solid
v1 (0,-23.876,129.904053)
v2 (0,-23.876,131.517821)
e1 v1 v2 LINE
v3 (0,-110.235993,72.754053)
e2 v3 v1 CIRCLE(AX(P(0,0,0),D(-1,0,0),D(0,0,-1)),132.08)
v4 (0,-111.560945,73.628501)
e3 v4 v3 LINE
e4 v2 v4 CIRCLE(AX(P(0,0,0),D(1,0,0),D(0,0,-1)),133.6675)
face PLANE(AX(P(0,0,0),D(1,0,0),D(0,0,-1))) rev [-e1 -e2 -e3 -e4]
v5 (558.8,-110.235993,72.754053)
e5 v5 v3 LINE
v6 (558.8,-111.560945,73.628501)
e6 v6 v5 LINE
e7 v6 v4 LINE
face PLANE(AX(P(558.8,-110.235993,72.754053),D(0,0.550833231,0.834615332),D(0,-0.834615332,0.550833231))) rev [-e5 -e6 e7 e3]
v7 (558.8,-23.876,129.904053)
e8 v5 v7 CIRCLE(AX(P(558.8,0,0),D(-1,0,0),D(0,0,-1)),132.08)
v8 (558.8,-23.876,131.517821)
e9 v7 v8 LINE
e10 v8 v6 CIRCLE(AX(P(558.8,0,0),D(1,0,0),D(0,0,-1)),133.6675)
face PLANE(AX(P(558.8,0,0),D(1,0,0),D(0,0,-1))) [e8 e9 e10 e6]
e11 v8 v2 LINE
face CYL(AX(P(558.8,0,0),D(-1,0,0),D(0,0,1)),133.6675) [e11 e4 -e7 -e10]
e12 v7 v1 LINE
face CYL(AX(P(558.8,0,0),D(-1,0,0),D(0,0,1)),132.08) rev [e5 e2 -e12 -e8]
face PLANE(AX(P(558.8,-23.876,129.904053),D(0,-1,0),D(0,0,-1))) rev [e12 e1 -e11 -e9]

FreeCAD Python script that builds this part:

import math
import FreeCAD as App
import Part
import Sketcher
Q = App.Units.Quantity

doc = App.newDocument("Part")
body = doc.addObject("PartDesign::Body", "Body")

sketch1 = doc.addObject("Sketcher::SketchObject", "Sketch")
body.addObject(sketch1)
sketch1.AttachmentSupport = (doc.YZ_Plane, [""])
sketch1.MapMode = "FlatFace"
sketch1.addGeometry([
    Part.LineSegment(App.Vector(-23.9, 129.9, 0), App.Vector(-23.9, 131.5, 0)),
    Part.ArcOfCircle(Part.Circle(App.Vector(0, 0, 0), App.Vector(0, 0, 1), 133.7), math.radians(100), math.radians(147)),
    Part.LineSegment(App.Vector(-111.6, 73.6, 0), App.Vector(-110.2, 72.8, 0)),
    Part.ArcOfCircle(Part.Circle(App.Vector(0, 0, 0), App.Vector(0, 0, 1), 132.1), math.radians(100), math.radians(147)),
], False)
sketch1.addConstraint([
    Sketcher.Constraint("Coincident", 0, 2, 1, 1),
    Sketcher.Constraint("Coincident", 1, 2, 2, 1),
    Sketcher.Constraint("Coincident", 2, 2, 3, 2),
    Sketcher.Constraint("Coincident", 3, 1, 0, 1),
    Sketcher.Constraint("Vertical", 0),
    Sketcher.Constraint("Coincident", 1, 3, -1, 1),
    Sketcher.Constraint("Coincident", 3, 3, -1, 1),
    Sketcher.Constraint("Radius", 3, Q("5.2 in")),
    Sketcher.Constraint("Radius", 1, Q("5.2625 in")),
    Sketcher.Constraint("DistanceX", 0, 2, -1, 1, Q("0.94 in")),
    Sketcher.Constraint("DistanceY", 2, 2, 3, 1, Q("2.25 in")),
    Sketcher.Constraint("DistanceY", -1, 1, 1, 2, Q("73.628501 mm")),
])
pad1 = doc.addObject("PartDesign::Pad", "Pad")
body.addObject(pad1)
pad1.Profile = sketch1
pad1.Length = Q("22 in")

doc.recompute()
